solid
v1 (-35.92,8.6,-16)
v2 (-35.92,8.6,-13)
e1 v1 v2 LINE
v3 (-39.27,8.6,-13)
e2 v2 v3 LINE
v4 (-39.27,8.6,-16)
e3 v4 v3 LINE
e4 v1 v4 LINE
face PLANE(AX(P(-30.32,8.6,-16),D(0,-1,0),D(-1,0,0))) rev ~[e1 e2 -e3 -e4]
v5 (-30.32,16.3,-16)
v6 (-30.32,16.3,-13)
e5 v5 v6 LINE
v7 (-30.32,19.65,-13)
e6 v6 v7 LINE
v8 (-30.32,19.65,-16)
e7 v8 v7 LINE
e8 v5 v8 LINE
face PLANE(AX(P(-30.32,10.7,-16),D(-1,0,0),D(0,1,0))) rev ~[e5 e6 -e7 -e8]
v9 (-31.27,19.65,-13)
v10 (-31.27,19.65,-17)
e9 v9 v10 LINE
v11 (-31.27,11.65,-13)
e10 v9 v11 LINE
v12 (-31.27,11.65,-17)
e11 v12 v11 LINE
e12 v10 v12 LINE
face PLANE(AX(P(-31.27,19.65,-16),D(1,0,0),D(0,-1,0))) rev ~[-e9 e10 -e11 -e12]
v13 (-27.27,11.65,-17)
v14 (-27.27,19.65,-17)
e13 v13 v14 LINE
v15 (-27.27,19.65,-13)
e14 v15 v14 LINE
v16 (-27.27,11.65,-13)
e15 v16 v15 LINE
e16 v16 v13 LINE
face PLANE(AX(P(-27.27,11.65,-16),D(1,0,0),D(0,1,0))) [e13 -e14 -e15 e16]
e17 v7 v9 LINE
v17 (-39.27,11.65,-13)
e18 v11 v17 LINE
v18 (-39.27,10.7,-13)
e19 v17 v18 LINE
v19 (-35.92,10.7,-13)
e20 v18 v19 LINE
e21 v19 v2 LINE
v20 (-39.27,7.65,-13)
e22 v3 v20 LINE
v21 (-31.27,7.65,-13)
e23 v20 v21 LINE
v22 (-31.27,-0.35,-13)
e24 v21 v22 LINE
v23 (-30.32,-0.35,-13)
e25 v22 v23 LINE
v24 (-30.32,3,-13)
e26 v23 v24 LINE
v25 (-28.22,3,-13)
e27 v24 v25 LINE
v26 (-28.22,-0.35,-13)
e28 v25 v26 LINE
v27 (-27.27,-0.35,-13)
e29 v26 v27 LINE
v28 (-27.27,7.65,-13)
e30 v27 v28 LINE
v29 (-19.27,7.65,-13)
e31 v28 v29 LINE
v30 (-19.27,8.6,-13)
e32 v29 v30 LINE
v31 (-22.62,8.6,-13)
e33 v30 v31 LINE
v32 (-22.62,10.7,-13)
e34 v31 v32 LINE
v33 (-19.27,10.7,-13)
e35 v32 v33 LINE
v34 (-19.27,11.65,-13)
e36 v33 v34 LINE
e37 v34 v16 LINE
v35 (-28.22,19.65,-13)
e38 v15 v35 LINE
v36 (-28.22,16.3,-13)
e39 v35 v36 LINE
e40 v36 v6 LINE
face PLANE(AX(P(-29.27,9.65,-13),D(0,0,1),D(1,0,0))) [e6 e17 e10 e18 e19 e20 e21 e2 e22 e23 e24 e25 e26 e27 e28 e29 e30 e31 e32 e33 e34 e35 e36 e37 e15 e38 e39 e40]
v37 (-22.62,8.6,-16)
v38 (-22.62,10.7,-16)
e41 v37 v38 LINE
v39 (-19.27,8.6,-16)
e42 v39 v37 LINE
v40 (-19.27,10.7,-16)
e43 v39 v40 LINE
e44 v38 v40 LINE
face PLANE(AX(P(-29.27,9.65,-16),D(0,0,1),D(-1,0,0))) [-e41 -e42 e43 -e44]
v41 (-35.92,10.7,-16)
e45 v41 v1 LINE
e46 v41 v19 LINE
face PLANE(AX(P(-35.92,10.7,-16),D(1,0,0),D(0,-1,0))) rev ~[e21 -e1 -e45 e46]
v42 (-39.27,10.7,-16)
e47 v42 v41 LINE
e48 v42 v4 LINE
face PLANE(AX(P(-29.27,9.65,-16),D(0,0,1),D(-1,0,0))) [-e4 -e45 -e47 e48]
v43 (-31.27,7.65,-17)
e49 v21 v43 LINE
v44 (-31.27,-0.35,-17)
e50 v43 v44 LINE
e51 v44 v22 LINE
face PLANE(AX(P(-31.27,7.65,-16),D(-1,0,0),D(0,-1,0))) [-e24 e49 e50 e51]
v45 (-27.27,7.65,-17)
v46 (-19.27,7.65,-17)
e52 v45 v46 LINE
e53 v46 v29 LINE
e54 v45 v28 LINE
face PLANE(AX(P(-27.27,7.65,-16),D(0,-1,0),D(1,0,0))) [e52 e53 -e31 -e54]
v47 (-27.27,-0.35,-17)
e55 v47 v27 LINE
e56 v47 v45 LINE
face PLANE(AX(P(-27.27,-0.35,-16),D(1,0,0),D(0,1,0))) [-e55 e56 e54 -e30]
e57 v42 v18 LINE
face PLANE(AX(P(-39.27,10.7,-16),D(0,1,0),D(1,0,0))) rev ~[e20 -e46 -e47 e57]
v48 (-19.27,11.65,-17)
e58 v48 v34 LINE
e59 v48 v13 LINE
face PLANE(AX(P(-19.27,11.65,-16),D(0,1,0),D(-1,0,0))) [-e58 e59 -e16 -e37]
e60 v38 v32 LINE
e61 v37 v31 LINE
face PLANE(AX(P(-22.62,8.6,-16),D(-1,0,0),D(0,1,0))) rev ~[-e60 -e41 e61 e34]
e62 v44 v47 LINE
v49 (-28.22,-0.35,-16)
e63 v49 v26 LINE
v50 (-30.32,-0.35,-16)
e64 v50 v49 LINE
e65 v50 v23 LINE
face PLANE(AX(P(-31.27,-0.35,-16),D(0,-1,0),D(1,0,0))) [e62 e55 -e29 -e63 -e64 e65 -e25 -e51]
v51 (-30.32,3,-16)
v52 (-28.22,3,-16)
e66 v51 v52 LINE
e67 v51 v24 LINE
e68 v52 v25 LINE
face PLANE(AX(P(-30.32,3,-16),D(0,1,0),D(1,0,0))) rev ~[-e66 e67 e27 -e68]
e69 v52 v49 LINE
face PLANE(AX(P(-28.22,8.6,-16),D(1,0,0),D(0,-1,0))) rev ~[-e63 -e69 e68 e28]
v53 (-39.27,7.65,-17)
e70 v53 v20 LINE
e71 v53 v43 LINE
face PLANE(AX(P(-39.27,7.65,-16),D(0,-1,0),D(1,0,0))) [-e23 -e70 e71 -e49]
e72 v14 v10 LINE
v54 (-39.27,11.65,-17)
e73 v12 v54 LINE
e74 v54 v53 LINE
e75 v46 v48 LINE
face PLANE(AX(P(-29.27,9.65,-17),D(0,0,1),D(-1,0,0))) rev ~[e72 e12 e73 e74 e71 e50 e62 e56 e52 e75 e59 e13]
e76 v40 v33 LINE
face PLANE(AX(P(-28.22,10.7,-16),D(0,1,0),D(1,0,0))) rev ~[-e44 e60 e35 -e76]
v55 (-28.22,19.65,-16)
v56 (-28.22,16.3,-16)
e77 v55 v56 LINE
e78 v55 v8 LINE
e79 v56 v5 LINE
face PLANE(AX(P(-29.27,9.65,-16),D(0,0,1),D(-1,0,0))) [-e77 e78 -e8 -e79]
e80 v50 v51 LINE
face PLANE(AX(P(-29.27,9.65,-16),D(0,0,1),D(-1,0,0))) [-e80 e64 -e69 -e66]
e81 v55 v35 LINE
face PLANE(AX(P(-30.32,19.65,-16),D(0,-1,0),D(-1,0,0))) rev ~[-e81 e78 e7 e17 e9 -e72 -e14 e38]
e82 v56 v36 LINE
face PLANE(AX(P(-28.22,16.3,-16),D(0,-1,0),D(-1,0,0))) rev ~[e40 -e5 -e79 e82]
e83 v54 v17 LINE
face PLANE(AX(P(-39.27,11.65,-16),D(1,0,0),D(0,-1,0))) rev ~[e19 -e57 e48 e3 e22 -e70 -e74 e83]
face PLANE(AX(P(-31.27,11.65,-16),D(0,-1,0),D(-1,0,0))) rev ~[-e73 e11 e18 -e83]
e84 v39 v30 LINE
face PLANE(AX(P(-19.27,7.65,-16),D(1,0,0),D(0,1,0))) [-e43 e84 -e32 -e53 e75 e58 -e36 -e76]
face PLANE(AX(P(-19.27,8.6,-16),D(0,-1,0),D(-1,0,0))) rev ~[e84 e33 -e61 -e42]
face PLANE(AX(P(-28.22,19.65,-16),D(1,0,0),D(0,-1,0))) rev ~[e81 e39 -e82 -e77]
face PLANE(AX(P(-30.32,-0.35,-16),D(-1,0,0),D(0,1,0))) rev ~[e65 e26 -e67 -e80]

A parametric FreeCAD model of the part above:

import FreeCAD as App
import Part
import Sketcher

V = App.Vector
Q = App.Units.Quantity

doc = App.newDocument("Part")
body = doc.addObject("PartDesign::Body", "Body")

sketch1 = body.newObject("Sketcher::SketchObject", "Sketch")
sketch1.AttachmentSupport = (doc.getObject("XY_Plane"), [""])
sketch1.MapMode = "FlatFace"
sketch1.AttachmentOffset = App.Placement(V(0, 0, -28), App.Rotation())
sketch1.addGeometry([
    Part.LineSegment(V(-2, 10, 0), V(-2, 2, 0)),
    Part.LineSegment(V(-2, 2, 0), V(-10, 2, 0)),
    Part.LineSegment(V(-10, 2, 0), V(-10, -2, 0)),
    Part.LineSegment(V(-10, -2, 0), V(-2, -2, 0)),
    Part.LineSegment(V(-2, -2, 0), V(-2, -10, 0)),
    Part.LineSegment(V(-2, -10, 0), V(2, -10, 0)),
    Part.LineSegment(V(2, -10, 0), V(2, -2, 0)),
    Part.LineSegment(V(2, -2, 0), V(10, -2, 0)),
    Part.LineSegment(V(10, -2, 0), V(10, 2, 0)),
    Part.LineSegment(V(10, 2, 0), V(2, 2, 0)),
    Part.LineSegment(V(2, 2, 0), V(2, 10, 0)),
    Part.LineSegment(V(2, 10, 0), V(-2, 10, 0)),
], False)
sketch1.addConstraint([
    Sketcher.Constraint("Coincident", 0, 2, 1, 1),
    Sketcher.Constraint("Coincident", 1, 2, 2, 1),
    Sketcher.Constraint("Coincident", 2, 2, 3, 1),
    Sketcher.Constraint("Coincident", 3, 2, 4, 1),
    Sketcher.Constraint("Coincident", 4, 2, 5, 1),
    Sketcher.Constraint("Coincident", 5, 2, 6, 1),
    Sketcher.Constraint("Coincident", 6, 2, 7, 1),
    Sketcher.Constraint("Coincident", 7, 2, 8, 1),
    Sketcher.Constraint("Coincident", 8, 2, 9, 1),
    Sketcher.Constraint("Coincident", 9, 2, 10, 1),
    Sketcher.Constraint("Coincident", 10, 2, 11, 1),
    Sketcher.Constraint("Coincident", 11, 2, 0, 1),
    Sketcher.Constraint("Vertical", 0),
    Sketcher.Constraint("Horizontal", 1),
    Sketcher.Constraint("Vertical", 2),
    Sketcher.Constraint("Horizontal", 3),
    Sketcher.Constraint("Vertical", 4),
    Sketcher.Constraint("Horizontal", 5),
    Sketcher.Constraint("Vertical", 6),
    Sketcher.Constraint("Horizontal", 7),
    Sketcher.Constraint("Vertical", 8),
    Sketcher.Constraint("Horizontal", 9),
    Sketcher.Constraint("Vertical", 10),
    Sketcher.Constraint("Horizontal", 11),
    Sketcher.Constraint("Symmetric", 0, 2, 6, 2, -1, 1),
    Sketcher.Constraint("Symmetric", 2, 2, 8, 2, -1, 1),
    Sketcher.Constraint("Symmetric", 4, 2, 10, 2, -1, 1),
    Sketcher.Constraint("Symmetric", 3, 2, 6, 2, -2),
    Sketcher.Constraint("Equal", 9, 0),
    Sketcher.Constraint("Equal", 11, 2),
    Sketcher.Constraint("DistanceX", 1, 2, 1, 1, Q("8 mm")),
    Sketcher.Constraint("DistanceX", 5, 1, 5, 2, Q("4 mm")),
])
pad1 = body.newObject("PartDesign::Pad", "Pad")
pad1.Profile = sketch1
pad1.Length = 1

sketch2 = body.newObject("Sketcher::SketchObject", "Sketch001")
sketch2.AttachmentSupport = (doc.getObject("XY_Plane"), [""])
sketch2.MapMode = "FlatFace"
sketch2.AttachmentOffset = App.Placement(V(0, 0, -28), App.Rotation())
sketch2.addGeometry([
    Part.LineSegment(V(-2, -10, 0), V(-2, -2, 0)),
    Part.LineSegment(V(-2, -2, 0), V(-10, -2, 0)),
    Part.LineSegment(V(-10, -2, 0), V(-10, -1.1, 0)),
    Part.LineSegment(V(-10, -1.1, 0), V(-1.1, -1.1, 0)),
    Part.LineSegment(V(-1.1, -1.1, 0), V(-1.1, -10, 0)),
    Part.LineSegment(V(-1.1, -10, 0), V(-2, -10, 0)),
    Part.LineSegment(V(-10, 2, 0), V(-2, 2, 0)),
    Part.LineSegment(V(-2, 2, 0), V(-2, 10, 0)),
    Part.LineSegment(V(-2, 10, 0), V(-1.1, 10, 0)),
    Part.LineSegment(V(-1.1, 10, 0), V(-1.1, 1.1, 0)),
    Part.LineSegment(V(-1.1, 1.1, 0), V(-10, 1.1, 0)),
    Part.LineSegment(V(-10, 1.1, 0), V(-10, 2, 0)),
    Part.LineSegment(V(2, 10, 0), V(2, 2, 0)),
    Part.LineSegment(V(2, 2, 0), V(10, 2, 0)),
    Part.LineSegment(V(10, 2, 0), V(10, 1.1, 0)),
    Part.LineSegment(V(10, 1.1, 0), V(1.1, 1.1, 0)),
    Part.LineSegment(V(1.1, 1.1, 0), V(1.1, 10, 0)),
    Part.LineSegment(V(1.1, 10, 0), V(2, 10, 0)),
    Part.LineSegment(V(10, -2, 0), V(2, -2, 0)),
    Part.LineSegment(V(2, -2, 0), V(2, -10, 0)),
    Part.LineSegment(V(2, -10, 0), V(1.1, -10, 0)),
    Part.LineSegment(V(1.1, -10, 0), V(1.1, -1.1, 0)),
    Part.LineSegment(V(1.1, -1.1, 0), V(10, -1.1, 0)),
    Part.LineSegment(V(10, -1.1, 0), V(10, -2, 0)),
], False)
sketch2.addConstraint([
    Sketcher.Constraint("Coincident", 0, 2, 1, 1),
    Sketcher.Constraint("Coincident", 1, 2, 2, 1),
    Sketcher.Constraint("Coincident", 2, 2, 3, 1),
    Sketcher.Constraint("Coincident", 3, 2, 4, 1),
    Sketcher.Constraint("Coincident", 4, 2, 5, 1),
    Sketcher.Constraint("Coincident", 5, 2, 0, 1),
    Sketcher.Constraint("Coincident", 6, 2, 7, 1),
    Sketcher.Constraint("Coincident", 7, 2, 8, 1),
    Sketcher.Constraint("Coincident", 8, 2, 9, 1),
    Sketcher.Constraint("Coincident", 9, 2, 10, 1),
    Sketcher.Constraint("Coincident", 10, 2, 11, 1),
    Sketcher.Constraint("Coincident", 11, 2, 6, 1),
    Sketcher.Constraint("Coincident", 12, 2, 13, 1),
    Sketcher.Constraint("Coincident", 13, 2, 14, 1),
    Sketcher.Constraint("Coincident", 14, 2, 15, 1),
    Sketcher.Constraint("Coincident", 15, 2, 16, 1),
    Sketcher.Constraint("Coincident", 16, 2, 17, 1),
    Sketcher.Constraint("Coincident", 17, 2, 12, 1),
    Sketcher.Constraint("Coincident", 18, 2, 19, 1),
    Sketcher.Constraint("Coincident", 19, 2, 20, 1),
    Sketcher.Constraint("Coincident", 20, 2, 21, 1),
    Sketcher.Constraint("Coincident", 21, 2, 22, 1),
    Sketcher.Constraint("Coincident", 22, 2, 23, 1),
    Sketcher.Constraint("Coincident", 23, 2, 18, 1),
    Sketcher.Constraint("Vertical", 0),
    Sketcher.Constraint("Horizontal", 1),
    Sketcher.Constraint("Vertical", 2),
    Sketcher.Constraint("Horizontal", 3),
    Sketcher.Constraint("Vertical", 4),
    Sketcher.Constraint("Horizontal", 5),
    Sketcher.Constraint("Horizontal", 6),
    Sketcher.Constraint("Vertical", 7),
    Sketcher.Constraint("Horizontal", 8),
    Sketcher.Constraint("Vertical", 9),
    Sketcher.Constraint("Horizontal", 10),
    Sketcher.Constraint("Vertical", 11),
    Sketcher.Constraint("Vertical", 12),
    Sketcher.Constraint("Horizontal", 13),
    Sketcher.Constraint("Vertical", 14),
    Sketcher.Constraint("Horizontal", 15),
    Sketcher.Constraint("Vertical", 16),
    Sketcher.Constraint("Horizontal", 17),
    Sketcher.Constraint("Horizontal", 18),
    Sketcher.Constraint("Vertical", 19),
    Sketcher.Constraint("Horizontal", 20),
    Sketcher.Constraint("Vertical", 21),
    Sketcher.Constraint("Horizontal", 22),
    Sketcher.Constraint("Vertical", 23),
    Sketcher.Constraint("Symmetric", 0, 2, 12, 2, -1, 1),
    Sketcher.Constraint("Symmetric", 2, 2, 14, 2, -1, 1),
    Sketcher.Constraint("Symmetric", 4, 2, 16, 2, -1, 1),
    Sketcher.Constraint("Symmetric", 6, 2, 18, 2, -1, 1),
    Sketcher.Constraint("Symmetric", 8, 2, 20, 2, -1, 1),
    Sketcher.Constraint("Symmetric", 10, 2, 22, 2, -1, 1),
    Sketcher.Constraint("Symmetric", 6, 2, 12, 2, -2),
    Sketcher.Constraint("Symmetric", 10, 2, 14, 2, -2),
    Sketcher.Constraint("Symmetric", 8, 2, 16, 2, -2),
    Sketcher.Constraint("Equal", 18, 0),
    Sketcher.Constraint("Equal", 20, 2),
    Sketcher.Constraint("DistanceX", 1, 2, 1, 1, Q("8 mm")),
    Sketcher.Constraint("DistanceX", 0, 2, -1, 1, Q("2 mm")),
    Sketcher.Constraint("DistanceY", 0, 2, -1, 1, Q("2 mm")),
    Sketcher.Constraint("DistanceX", 3, 1, 3, 2, Q("8.95 mm")),
])
pad2 = body.newObject("PartDesign::Pad", "Pad001")
pad2.Profile = sketch2
pad2.Length = 3
pad2.Reversed = True

sketch3 = body.newObject("Sketcher::SketchObject", "Sketch002")
sketch3.AttachmentSupport = (doc.getObject("XY_Plane"), [""])
sketch3.MapMode = "FlatFace"
sketch3.AttachmentOffset = App.Placement(V(0, 0, -28), App.Rotation())
sketch3.addGeometry([
    Part.LineSegment(V(-6.7, -1.1, 0), V(-6.7, 1.1, 0)),
    Part.LineSegment(V(-6.7, 1.1, 0), V(-1.1, 1.1, 0)),
    Part.LineSegment(V(-1.1, 1.1, 0), V(-1.1, 6.7, 0)),
    Part.LineSegment(V(-1.1, 6.7, 0), V(1.1, 6.7, 0)),
    Part.LineSegment(V(1.1, 6.7, 0), V(1.1, 1.1, 0)),
    Part.LineSegment(V(1.1, 1.1, 0), V(6.7, 1.1, 0)),
    Part.LineSegment(V(6.7, 1.1, 0), V(6.7, -1.1, 0)),
    Part.LineSegment(V(6.7, -1.1, 0), V(1.1, -1.1, 0)),
    Part.LineSegment(V(1.1, -1.1, 0), V(1.1, -6.7, 0)),
    Part.LineSegment(V(1.1, -6.7, 0), V(-1.1, -6.7, 0)),
    Part.LineSegment(V(-1.1, -6.7, 0), V(-1.1, -1.1, 0)),
    Part.LineSegment(V(-1.1, -1.1, 0), V(-6.7, -1.1, 0)),
], False)
sketch3.addConstraint([
    Sketcher.Constraint("Coincident", 0, 2, 1, 1),
    Sketcher.Constraint("Coincident", 1, 2, 2, 1),
    Sketcher.Constraint("Coincident", 2, 2, 3, 1),
    Sketcher.Constraint("Coincident", 3, 2, 4, 1),
    Sketcher.Constraint("Coincident", 4, 2, 5, 1),
    Sketcher.Constraint("Coincident", 5, 2, 6, 1),
    Sketcher.Constraint("Coincident", 6, 2, 7, 1),
    Sketcher.Constraint("Coincident", 7, 2, 8, 1),
    Sketcher.Constraint("Coincident", 8, 2, 9, 1),
    Sketcher.Constraint("Coincident", 9, 2, 10, 1),
    Sketcher.Constraint("Coincident", 10, 2, 11, 1),
    Sketcher.Constraint("Coincident", 11, 2, 0, 1),
    Sketcher.Constraint("Vertical", 0),
    Sketcher.Constraint("Horizontal", 1),
    Sketcher.Constraint("Vertical", 2),
    Sketcher.Constraint("Horizontal", 3),
    Sketcher.Constraint("Vertical", 4),
    Sketcher.Constraint("Horizontal", 5),
    Sketcher.Constraint("Vertical", 6),
    Sketcher.Constraint("Horizontal", 7),
    Sketcher.Constraint("Vertical", 8),
    Sketcher.Constraint("Horizontal", 9),
    Sketcher.Constraint("Vertical", 10),
    Sketcher.Constraint("Horizontal", 11),
    Sketcher.Constraint("Symmetric", 0, 2, 6, 2, -1, 1),
    Sketcher.Constraint("Symmetric", 2, 2, 8, 2, -1, 1),
    Sketcher.Constraint("Symmetric", 4, 2, 10, 2, -1, 1),
    Sketcher.Constraint("Symmetric", 1, 2, 4, 2, -2),
    Sketcher.Constraint("Equal", 9, 0),
    Sketcher.Constraint("Equal", 11, 2),
    Sketcher.Constraint("DistanceX", 1, 1, 1, 2, Q("5.6 mm")),
    Sketcher.Constraint("DistanceX", 3, 1, 3, 2, Q("2.1 mm")),
])
pad3 = body.newObject("PartDesign::Pad", "Pad002")
pad3.Profile = sketch3
pad3.Length = 3
pad3.Reversed = True
body2 = doc.addObject("PartDesign::Body", "Body001")
doc.recompute()

body.Placement = App.Placement(V(-29.27, 9.65, -44), App.Rotation(V(1, 0, 0), 180))
boolean = body2.newObject("PartDesign::Boolean", "Boolean")
boolean.Type = "Fuse"
boolean.addObjects([body])

doc.recompute()
